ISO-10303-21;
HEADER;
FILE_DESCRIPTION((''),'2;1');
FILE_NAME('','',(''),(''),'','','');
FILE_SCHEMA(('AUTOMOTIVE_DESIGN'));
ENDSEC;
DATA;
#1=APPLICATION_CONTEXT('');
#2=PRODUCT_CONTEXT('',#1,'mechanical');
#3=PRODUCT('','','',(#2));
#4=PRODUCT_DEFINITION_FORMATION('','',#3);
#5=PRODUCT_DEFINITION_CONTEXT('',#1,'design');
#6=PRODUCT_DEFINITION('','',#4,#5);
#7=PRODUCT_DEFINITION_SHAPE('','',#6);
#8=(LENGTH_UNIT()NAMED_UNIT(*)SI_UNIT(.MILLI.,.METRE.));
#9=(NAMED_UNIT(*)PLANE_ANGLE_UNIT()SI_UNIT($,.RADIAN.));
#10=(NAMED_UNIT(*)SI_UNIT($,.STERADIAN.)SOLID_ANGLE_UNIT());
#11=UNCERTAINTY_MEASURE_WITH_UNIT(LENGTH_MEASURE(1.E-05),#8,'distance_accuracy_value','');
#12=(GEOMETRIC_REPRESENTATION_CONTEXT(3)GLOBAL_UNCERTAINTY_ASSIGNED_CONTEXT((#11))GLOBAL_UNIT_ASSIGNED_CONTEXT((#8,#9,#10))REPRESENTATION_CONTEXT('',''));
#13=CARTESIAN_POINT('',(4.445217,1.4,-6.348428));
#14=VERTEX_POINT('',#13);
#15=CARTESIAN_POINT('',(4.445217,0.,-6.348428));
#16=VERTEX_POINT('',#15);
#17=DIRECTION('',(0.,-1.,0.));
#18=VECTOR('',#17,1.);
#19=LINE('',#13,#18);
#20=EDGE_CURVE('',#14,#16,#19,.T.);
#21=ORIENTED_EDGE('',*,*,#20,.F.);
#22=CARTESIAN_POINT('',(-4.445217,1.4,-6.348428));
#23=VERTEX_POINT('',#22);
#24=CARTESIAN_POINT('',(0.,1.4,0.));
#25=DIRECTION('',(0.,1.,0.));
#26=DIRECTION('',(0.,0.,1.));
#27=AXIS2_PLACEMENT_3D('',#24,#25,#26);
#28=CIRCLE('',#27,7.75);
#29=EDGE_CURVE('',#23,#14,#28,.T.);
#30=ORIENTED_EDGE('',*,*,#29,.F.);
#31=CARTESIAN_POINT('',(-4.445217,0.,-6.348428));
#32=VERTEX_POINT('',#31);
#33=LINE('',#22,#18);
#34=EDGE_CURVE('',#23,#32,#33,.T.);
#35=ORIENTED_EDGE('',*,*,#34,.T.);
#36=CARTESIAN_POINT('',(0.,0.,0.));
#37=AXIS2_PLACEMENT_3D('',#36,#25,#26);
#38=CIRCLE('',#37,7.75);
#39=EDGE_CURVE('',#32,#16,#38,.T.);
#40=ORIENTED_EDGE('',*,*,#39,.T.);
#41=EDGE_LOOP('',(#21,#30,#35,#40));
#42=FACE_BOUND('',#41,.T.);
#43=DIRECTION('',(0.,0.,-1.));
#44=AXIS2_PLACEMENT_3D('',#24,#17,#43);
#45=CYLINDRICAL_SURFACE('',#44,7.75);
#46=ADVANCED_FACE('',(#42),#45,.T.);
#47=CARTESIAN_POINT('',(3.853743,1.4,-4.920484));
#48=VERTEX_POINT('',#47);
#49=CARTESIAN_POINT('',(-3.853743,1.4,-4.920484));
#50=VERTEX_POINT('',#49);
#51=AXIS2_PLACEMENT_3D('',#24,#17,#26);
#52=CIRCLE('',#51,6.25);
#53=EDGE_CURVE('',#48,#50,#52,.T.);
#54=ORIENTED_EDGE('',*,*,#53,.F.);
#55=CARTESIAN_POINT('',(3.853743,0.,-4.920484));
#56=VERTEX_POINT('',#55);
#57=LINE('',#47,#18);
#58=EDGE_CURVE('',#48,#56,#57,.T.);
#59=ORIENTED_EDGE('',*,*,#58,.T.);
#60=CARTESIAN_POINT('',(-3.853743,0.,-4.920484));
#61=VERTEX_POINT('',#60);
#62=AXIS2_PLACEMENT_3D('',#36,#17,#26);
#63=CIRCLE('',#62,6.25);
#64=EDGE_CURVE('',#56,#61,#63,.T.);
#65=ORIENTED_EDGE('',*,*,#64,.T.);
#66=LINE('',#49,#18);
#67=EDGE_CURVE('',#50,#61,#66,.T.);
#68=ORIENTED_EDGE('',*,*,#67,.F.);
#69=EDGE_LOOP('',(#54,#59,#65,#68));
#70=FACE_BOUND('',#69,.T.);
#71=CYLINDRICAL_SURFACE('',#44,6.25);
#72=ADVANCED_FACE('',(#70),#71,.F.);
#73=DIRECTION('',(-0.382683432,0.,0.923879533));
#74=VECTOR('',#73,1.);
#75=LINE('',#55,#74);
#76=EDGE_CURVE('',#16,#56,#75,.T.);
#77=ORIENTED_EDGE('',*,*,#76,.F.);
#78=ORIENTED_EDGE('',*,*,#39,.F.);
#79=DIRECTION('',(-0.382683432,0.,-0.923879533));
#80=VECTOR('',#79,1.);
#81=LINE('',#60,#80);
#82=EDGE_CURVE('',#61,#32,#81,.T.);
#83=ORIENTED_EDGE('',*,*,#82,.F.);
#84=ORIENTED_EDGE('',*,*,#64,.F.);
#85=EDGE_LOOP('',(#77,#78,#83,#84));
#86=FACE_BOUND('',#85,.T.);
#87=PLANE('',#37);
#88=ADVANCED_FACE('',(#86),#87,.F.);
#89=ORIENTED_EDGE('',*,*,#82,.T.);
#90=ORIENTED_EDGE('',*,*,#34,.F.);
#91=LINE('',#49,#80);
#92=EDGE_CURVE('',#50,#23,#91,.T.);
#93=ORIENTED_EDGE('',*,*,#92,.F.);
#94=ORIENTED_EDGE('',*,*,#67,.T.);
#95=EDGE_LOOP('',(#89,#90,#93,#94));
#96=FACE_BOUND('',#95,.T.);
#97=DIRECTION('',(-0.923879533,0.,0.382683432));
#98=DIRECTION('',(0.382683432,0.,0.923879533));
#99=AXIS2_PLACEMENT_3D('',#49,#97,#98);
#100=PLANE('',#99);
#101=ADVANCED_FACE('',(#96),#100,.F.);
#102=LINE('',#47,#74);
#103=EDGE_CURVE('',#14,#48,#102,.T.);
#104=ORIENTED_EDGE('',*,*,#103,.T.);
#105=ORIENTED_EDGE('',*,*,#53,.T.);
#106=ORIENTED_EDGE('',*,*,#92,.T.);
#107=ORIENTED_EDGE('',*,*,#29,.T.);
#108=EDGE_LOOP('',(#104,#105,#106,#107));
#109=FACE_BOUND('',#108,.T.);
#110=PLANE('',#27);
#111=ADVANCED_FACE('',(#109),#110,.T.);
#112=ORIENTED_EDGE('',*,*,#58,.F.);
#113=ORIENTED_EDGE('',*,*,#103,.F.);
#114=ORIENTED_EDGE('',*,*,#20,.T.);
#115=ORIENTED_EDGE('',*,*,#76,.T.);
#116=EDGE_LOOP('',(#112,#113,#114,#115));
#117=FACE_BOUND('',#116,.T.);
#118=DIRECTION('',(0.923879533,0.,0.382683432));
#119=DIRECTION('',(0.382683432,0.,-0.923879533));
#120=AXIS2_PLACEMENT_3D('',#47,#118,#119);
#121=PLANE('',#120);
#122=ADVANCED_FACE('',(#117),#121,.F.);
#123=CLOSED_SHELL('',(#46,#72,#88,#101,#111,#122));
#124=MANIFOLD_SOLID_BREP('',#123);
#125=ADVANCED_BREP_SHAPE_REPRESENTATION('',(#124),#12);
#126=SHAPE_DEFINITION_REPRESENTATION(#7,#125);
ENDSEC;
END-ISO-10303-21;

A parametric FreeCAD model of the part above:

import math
import FreeCAD as App
import Part
import Sketcher
Q = App.Units.Quantity

doc = App.newDocument("Part")
params = doc.addObject("Spreadsheet::Sheet", "Params")
for row, (alias, value) in enumerate([
    ("sketch1_radius", "6.25 mm"),
    ("sketch1_radius2", "7.75 mm"),
    ("pad1_length", "1.4 mm"),
], start=1):
    params.set(f"A{row}", alias)
    params.set(f"B{row}", "=" + value)
    params.setAlias(f"B{row}", alias)

body = doc.addObject("PartDesign::Body", "Body")

# Sketch on XZ plane
sketch1 = body.newObject("Sketcher::SketchObject", "Sketch")
sketch1.AttachmentSupport = (doc.getObject("XZ_Plane"), [""])
sketch1.MapMode = "FlatFace"
sketch1.addGeometry([
    Part.LineSegment(App.Vector(4.4, -6.3, 0), App.Vector(3.9, -4.9, 0)),
    Part.ArcOfCircle(Part.Circle(App.Vector(0, 0, 0), App.Vector(0, 0, 1), 6.2), math.radians(-52), math.radians(232)),
    Part.LineSegment(App.Vector(-3.9, -4.9, 0), App.Vector(-4.4, -6.3, 0)),
    Part.ArcOfCircle(Part.Circle(App.Vector(0, 0, 0), App.Vector(0, 0, 1), 7.8), math.radians(-55), math.radians(235)),
], False)
sketch1.addConstraint([
    Sketcher.Constraint("Coincident", 0, 2, 1, 1),
    Sketcher.Constraint("Coincident", 1, 2, 2, 1),
    Sketcher.Constraint("Coincident", 2, 2, 3, 2),
    Sketcher.Constraint("Coincident", 3, 1, 0, 1),
    Sketcher.Constraint("Coincident", 1, 3, -1, 1),
    Sketcher.Constraint("Coincident", 3, 3, -1, 1),
    Sketcher.Constraint("Horizontal", 0, 2, 1, 2),
    Sketcher.Constraint("Horizontal", 2, 2, 3, 1),
    Sketcher.Constraint("Radius", 1, Q("6.25 mm")),
    Sketcher.Constraint("Radius", 3, Q("7.75 mm")),
    Sketcher.Constraint("Angle", 0, Q("112.5 deg")),
    Sketcher.Constraint("DistanceY", 2, 2, -1, 1, Q("6.348428 mm")),
])
sketch1.setExpression("Constraints[8]", "Params.sketch1_radius")
sketch1.setExpression("Constraints[9]", "Params.sketch1_radius2")
pad1 = body.newObject("PartDesign::Pad", "Pad")
pad1.Profile = sketch1
pad1.setExpression("Length", "Params.pad1_length")
pad1.Reversed = True

doc.recompute()
